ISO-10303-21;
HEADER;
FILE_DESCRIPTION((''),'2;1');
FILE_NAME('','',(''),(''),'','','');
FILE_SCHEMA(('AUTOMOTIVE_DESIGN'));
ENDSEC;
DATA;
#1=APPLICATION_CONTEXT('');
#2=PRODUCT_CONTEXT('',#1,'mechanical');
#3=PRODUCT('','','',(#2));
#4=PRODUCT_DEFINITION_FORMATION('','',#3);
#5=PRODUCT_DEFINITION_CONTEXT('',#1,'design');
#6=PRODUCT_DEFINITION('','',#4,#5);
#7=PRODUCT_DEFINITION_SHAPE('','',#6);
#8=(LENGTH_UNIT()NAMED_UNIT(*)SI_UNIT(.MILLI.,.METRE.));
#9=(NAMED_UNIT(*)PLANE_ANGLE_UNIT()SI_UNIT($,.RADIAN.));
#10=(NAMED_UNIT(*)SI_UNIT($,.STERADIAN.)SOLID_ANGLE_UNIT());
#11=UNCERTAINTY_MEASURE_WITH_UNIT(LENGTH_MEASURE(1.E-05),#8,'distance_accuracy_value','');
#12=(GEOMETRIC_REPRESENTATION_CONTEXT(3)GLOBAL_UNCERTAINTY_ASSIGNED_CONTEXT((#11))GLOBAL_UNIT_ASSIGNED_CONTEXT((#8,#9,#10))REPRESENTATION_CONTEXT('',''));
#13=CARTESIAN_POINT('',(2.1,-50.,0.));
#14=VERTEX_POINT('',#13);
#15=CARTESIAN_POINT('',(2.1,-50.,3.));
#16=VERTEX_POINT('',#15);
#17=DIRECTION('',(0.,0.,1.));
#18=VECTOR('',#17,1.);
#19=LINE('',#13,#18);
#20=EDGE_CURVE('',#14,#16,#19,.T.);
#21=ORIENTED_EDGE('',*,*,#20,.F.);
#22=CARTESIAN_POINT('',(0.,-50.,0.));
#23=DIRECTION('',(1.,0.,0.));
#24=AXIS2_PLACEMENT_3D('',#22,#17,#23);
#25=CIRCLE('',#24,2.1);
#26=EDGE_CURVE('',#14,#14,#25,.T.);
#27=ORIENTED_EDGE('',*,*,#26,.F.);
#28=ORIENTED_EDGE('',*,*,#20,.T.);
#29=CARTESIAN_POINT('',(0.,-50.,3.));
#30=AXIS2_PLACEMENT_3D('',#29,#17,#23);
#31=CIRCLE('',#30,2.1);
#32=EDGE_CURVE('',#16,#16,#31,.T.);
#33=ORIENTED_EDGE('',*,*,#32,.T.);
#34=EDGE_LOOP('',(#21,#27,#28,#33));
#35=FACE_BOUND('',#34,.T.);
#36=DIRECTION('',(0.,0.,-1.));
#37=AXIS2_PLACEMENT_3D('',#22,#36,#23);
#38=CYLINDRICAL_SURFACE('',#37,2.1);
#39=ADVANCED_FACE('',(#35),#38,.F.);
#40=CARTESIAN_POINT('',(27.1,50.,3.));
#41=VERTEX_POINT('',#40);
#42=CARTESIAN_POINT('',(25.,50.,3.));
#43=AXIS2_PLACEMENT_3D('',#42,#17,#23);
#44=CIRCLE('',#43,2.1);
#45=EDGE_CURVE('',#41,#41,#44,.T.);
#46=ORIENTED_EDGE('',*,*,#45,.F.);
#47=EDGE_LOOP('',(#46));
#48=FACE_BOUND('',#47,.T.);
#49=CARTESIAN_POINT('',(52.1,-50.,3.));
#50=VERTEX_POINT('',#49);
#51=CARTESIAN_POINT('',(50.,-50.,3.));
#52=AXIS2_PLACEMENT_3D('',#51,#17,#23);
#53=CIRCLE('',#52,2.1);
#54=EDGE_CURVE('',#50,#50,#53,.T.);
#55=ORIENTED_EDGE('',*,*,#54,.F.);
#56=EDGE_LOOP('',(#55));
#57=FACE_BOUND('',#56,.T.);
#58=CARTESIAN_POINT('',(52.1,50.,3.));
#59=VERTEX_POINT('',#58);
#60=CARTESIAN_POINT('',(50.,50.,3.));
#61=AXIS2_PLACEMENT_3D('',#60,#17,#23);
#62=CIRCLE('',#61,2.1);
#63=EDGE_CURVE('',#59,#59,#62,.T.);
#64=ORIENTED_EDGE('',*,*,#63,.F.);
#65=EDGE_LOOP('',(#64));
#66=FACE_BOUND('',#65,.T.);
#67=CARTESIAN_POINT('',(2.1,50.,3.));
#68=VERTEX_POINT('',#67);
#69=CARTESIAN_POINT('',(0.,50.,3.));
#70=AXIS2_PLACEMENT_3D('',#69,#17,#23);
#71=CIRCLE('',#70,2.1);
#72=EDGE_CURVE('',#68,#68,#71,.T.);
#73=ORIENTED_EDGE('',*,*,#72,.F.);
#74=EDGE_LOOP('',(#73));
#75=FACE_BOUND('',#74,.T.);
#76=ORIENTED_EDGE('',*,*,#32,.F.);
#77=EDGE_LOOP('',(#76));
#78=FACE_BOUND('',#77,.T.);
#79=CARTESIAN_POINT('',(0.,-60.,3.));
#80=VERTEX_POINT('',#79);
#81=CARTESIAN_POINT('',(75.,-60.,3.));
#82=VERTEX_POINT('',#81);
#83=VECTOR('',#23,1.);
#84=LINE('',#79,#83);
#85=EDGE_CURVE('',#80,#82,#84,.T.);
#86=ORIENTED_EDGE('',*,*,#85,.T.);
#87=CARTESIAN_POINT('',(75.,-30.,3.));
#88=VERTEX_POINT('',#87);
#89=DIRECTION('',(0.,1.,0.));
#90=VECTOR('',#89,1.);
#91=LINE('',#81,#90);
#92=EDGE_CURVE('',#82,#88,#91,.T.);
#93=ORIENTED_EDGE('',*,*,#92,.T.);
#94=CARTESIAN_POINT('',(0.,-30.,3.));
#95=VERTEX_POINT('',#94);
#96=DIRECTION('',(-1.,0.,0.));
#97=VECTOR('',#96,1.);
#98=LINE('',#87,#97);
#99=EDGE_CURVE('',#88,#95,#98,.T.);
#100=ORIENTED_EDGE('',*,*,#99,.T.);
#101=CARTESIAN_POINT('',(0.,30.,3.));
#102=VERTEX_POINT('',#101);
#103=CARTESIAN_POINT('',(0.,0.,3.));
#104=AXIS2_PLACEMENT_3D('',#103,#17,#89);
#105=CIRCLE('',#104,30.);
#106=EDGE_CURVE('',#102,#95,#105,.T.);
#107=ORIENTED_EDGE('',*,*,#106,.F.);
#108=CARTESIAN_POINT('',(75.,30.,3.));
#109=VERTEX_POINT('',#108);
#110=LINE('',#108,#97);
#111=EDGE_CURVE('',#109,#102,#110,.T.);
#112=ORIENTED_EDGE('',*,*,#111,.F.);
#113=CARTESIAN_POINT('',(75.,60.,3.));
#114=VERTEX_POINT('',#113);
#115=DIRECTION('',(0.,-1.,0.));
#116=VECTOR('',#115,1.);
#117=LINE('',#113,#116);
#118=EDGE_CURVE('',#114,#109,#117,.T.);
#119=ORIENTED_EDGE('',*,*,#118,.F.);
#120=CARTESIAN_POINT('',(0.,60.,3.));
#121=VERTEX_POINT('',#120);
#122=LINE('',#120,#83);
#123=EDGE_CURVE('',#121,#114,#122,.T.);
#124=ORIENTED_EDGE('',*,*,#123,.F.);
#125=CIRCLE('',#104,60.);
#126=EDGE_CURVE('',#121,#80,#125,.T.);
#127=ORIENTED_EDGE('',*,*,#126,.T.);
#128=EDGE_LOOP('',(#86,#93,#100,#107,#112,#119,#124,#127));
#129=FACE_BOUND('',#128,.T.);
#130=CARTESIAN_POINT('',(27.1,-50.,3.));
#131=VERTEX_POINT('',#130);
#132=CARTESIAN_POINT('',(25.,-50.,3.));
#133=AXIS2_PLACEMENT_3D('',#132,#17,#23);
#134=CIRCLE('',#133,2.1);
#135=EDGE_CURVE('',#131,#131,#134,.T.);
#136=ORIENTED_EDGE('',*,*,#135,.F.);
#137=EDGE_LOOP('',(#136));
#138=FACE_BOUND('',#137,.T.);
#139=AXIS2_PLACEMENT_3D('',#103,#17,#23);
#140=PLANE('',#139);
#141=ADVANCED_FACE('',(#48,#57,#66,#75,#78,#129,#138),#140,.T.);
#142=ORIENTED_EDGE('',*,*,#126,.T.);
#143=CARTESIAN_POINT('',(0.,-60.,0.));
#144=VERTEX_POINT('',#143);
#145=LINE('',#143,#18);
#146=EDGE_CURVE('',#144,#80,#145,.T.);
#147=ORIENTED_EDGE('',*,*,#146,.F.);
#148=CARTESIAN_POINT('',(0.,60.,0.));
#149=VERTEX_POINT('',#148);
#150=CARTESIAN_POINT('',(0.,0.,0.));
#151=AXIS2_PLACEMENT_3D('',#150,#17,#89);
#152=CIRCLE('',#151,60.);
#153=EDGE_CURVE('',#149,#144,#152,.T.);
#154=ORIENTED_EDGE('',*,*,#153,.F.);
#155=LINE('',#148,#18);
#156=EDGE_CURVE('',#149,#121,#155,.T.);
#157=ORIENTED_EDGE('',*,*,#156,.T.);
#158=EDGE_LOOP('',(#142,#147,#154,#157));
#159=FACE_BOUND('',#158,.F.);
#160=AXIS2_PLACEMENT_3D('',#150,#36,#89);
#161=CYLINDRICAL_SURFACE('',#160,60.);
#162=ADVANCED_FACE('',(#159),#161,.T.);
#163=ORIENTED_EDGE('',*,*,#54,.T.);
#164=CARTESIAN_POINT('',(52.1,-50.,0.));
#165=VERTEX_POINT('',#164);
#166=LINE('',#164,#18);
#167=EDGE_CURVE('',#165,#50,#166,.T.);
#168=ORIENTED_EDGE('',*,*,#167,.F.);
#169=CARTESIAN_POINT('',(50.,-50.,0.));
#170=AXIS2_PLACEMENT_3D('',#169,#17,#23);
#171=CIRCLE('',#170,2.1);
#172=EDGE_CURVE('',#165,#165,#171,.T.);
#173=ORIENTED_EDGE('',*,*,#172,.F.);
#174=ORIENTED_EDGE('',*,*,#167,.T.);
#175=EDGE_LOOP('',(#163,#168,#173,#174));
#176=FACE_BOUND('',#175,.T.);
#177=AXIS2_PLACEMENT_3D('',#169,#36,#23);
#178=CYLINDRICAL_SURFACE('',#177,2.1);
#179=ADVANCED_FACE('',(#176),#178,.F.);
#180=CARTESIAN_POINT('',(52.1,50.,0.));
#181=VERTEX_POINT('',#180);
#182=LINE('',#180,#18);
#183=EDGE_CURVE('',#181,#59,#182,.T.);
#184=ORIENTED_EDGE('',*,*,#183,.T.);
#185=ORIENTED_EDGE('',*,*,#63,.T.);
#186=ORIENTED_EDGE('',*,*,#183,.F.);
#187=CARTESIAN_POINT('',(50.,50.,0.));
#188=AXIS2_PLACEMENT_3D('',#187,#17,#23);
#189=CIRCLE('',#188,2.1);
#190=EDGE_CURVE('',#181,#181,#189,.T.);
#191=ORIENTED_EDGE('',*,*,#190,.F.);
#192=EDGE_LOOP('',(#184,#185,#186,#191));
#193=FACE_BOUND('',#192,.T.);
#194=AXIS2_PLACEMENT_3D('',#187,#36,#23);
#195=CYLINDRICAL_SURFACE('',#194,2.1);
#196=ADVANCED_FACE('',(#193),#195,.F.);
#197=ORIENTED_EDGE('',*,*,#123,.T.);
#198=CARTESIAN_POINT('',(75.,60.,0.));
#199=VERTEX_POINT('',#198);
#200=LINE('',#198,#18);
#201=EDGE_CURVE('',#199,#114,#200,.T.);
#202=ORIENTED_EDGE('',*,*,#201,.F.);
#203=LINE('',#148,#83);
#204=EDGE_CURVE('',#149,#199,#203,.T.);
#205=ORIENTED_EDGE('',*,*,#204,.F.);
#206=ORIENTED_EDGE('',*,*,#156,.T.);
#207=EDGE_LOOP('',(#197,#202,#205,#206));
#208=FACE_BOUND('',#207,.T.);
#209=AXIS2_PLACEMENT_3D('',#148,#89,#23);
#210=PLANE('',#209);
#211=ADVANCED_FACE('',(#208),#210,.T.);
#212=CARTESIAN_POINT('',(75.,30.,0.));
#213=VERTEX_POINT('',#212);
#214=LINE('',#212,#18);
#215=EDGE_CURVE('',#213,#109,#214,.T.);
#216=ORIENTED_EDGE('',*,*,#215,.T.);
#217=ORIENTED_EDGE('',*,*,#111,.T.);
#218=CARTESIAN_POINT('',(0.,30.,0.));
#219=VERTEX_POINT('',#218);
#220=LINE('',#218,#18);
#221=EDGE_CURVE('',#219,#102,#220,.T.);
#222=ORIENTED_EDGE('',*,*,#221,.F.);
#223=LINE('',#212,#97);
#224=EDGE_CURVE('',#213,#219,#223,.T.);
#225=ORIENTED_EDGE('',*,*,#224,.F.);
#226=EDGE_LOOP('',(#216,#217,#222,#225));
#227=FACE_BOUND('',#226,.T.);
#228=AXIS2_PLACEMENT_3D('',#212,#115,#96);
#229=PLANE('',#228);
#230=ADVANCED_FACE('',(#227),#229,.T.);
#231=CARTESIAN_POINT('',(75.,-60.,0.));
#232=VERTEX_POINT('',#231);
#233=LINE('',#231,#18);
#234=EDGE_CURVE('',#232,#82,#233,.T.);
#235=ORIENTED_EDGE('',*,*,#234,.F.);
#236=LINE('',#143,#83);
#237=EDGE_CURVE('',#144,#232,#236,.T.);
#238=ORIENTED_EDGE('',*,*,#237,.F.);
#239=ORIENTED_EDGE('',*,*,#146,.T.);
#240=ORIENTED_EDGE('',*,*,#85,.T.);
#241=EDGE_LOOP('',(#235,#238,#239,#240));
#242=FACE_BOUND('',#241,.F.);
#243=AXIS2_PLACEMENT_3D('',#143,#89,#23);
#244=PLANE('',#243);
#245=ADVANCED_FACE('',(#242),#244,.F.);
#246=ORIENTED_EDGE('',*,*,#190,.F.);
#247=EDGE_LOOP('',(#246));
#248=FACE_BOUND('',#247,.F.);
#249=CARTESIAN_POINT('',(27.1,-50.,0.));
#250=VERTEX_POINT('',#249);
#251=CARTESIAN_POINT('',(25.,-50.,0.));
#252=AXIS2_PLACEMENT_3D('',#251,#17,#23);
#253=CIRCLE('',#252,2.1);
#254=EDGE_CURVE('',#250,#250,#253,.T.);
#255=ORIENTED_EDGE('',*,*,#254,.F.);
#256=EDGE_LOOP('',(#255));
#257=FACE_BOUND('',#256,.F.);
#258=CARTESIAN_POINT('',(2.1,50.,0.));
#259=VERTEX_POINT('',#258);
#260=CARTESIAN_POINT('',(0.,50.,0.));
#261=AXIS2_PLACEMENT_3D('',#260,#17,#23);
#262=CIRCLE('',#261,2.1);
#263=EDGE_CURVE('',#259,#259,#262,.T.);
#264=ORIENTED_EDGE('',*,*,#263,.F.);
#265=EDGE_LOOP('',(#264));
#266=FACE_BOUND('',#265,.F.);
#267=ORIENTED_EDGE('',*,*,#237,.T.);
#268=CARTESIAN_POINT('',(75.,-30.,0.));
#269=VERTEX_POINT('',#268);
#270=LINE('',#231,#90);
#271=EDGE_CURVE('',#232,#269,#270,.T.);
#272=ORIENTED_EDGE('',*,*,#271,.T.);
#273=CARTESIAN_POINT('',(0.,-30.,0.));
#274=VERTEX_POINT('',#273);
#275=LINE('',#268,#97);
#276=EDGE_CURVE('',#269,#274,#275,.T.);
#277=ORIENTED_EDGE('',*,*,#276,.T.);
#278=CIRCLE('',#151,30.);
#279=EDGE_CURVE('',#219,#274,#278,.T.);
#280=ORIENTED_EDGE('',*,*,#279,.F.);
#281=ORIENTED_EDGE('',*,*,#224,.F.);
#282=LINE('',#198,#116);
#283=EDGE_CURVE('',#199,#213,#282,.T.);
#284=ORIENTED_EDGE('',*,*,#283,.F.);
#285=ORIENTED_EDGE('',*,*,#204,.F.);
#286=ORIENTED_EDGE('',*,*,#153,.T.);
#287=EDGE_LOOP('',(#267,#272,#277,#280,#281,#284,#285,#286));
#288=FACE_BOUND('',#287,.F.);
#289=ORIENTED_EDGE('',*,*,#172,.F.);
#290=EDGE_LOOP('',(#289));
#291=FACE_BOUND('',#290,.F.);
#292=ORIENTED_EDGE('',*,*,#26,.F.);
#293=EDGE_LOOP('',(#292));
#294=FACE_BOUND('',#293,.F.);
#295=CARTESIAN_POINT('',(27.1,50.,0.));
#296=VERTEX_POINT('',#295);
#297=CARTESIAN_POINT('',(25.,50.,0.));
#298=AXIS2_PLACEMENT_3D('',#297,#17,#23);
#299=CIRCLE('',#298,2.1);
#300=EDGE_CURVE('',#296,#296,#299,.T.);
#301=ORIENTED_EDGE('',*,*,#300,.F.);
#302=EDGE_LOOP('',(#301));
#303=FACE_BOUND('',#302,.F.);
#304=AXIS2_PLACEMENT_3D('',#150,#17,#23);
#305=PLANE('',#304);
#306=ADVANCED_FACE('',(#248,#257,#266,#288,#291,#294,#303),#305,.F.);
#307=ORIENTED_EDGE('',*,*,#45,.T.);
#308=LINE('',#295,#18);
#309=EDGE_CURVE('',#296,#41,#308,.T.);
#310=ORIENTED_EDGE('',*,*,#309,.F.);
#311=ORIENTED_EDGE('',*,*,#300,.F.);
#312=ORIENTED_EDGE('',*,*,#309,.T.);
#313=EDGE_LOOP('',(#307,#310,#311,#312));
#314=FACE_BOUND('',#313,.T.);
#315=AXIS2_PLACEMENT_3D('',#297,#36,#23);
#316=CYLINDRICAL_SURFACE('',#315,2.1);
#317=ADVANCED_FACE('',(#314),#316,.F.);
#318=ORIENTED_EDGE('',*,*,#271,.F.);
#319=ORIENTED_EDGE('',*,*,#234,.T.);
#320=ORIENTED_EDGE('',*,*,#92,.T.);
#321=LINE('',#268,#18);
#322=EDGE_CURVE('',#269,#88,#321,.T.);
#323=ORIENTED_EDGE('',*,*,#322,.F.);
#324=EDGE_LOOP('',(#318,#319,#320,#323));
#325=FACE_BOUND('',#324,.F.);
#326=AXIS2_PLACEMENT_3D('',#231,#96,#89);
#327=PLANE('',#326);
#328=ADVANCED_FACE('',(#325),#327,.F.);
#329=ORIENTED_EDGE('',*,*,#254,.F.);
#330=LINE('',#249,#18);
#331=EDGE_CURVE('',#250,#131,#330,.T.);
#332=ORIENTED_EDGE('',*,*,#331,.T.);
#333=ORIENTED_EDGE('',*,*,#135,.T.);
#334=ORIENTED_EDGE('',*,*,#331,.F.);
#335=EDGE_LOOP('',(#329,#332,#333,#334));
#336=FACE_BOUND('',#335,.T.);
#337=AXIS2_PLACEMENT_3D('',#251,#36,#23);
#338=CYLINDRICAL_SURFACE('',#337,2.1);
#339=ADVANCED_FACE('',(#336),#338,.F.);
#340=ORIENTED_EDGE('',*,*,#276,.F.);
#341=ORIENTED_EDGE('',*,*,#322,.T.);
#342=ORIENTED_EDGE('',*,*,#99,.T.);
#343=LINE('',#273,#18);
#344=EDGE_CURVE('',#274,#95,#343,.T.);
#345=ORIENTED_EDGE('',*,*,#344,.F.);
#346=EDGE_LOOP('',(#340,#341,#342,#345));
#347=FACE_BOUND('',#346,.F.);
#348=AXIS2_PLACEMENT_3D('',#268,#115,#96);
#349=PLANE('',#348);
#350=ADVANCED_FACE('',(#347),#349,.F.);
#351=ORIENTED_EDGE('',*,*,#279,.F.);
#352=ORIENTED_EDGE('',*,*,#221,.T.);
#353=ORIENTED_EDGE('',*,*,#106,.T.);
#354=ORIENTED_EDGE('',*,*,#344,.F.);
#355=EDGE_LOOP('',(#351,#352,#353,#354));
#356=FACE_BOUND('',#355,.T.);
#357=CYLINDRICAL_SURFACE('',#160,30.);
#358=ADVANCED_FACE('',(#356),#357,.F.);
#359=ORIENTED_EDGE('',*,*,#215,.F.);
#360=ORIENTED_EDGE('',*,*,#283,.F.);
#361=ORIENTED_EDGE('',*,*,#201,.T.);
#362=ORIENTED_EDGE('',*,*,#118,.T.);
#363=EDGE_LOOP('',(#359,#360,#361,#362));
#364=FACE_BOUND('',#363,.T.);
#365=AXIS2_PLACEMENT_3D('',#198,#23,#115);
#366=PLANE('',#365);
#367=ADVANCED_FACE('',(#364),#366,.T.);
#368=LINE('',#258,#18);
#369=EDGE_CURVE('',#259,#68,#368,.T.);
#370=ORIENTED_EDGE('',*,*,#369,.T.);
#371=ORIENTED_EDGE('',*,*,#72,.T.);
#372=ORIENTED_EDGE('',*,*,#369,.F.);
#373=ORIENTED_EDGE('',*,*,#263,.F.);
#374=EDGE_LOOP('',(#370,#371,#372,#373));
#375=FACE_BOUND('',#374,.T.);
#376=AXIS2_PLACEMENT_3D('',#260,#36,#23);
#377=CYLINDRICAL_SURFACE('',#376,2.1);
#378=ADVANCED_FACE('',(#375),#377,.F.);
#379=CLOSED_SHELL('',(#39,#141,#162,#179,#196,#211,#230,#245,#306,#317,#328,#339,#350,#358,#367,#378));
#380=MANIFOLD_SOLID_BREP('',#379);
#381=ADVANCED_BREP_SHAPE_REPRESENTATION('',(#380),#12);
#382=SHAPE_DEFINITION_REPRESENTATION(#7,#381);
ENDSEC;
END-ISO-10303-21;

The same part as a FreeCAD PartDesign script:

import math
import FreeCAD as App
import Part
import Sketcher

V = App.Vector

doc = App.newDocument("Part")
body = doc.addObject("PartDesign::Body", "Body")

# Sketch on XY plane
sketch1 = body.newObject("Sketcher::SketchObject", "Sketch")
sketch1.AttachmentSupport = (doc.getObject("XY_Plane"), [""])
sketch1.MapMode = "FlatFace"
sketch1.addGeometry([
    Part.LineSegment(V(75, 60, 0), V(0, 60, 0)),  # 0
    Part.ArcOfCircle(Part.Circle(V(0, 0, 0), V(0, 0, 1), 60), math.radians(90), math.radians(270)),  # 1
    Part.LineSegment(V(0, -60, 0), V(75, -60, 0)),  # 2
    Part.LineSegment(V(75, -60, 0), V(75, -30, 0)),  # 3
    Part.LineSegment(V(75, -30, 0), V(0, -30, 0)),  # 4
    Part.ArcOfCircle(Part.Circle(V(0, 0, 0), V(0, 0, 1), 30), math.radians(90), math.radians(270)),  # 5
    Part.LineSegment(V(0, 30, 0), V(75, 30, 0)),  # 6
    Part.LineSegment(V(75, 30, 0), V(75, 60, 0)),  # 7
    Part.Circle(V(0, -50, 0), V(0, 0, 1), 2.1),  # 8
    Part.Circle(V(25, -50, 0), V(0, 0, 1), 2.1),  # 9
    Part.Circle(V(50, -50, 0), V(0, 0, 1), 2.1),  # 10
    Part.Circle(V(0, 50, 0), V(0, 0, 1), 2.1),  # 11
    Part.Circle(V(25, 50, 0), V(0, 0, 1), 2.1),  # 12
    Part.Circle(V(50, 50, 0), V(0, 0, 1), 2.1),  # 13
], False)
sketch1.addConstraint([
    Sketcher.Constraint("Tangent", 0, 2, 1, 1),
    Sketcher.Constraint("Tangent", 1, 2, 2, 1),
    Sketcher.Constraint("Coincident", 2, 2, 3, 1),
    Sketcher.Constraint("Coincident", 3, 2, 4, 1),
    Sketcher.Constraint("Tangent", 4, 2, 5, 2),
    Sketcher.Constraint("Tangent", 5, 1, 6, 1),
    Sketcher.Constraint("Coincident", 6, 2, 7, 1),
    Sketcher.Constraint("Coincident", 7, 2, 0, 1),
    Sketcher.Constraint("Horizontal", 0),
    Sketcher.Constraint("Horizontal", 2),
    Sketcher.Constraint("Vertical", 3),
    Sketcher.Constraint("Horizontal", 4),
    Sketcher.Constraint("Horizontal", 6),
    Sketcher.Constraint("Vertical", 7),
    Sketcher.Constraint("Coincident", 1, 3, -1, 1),
    Sketcher.Constraint("Coincident", 5, 3, -1, 1),
    Sketcher.Constraint("Equal", 8, 9),
    Sketcher.Constraint("Equal", 9, 10),
    Sketcher.Constraint("Equal", 10, 11),
    Sketcher.Constraint("Equal", 11, 12),
    Sketcher.Constraint("Equal", 12, 13),
    Sketcher.Constraint("Symmetric", 8, 3, 11, 3, -1, 1),
    Sketcher.Constraint("Symmetric", 9, 3, 12, 3, -1),
    Sketcher.Constraint("Symmetric", 10, 3, 13, 3, -1),
    Sketcher.Constraint("PointOnObject", 8, 3, -2),
    Sketcher.Constraint("Horizontal", 8, 3, 9, 3),
    Sketcher.Constraint("Horizontal", 9, 3, 10, 3),
    Sketcher.Constraint("Vertical", 3, 2, 6, 2),
    Sketcher.Constraint("Diameter", 8, 4.2),
    Sketcher.Constraint("Radius", 1, 60.0),
    Sketcher.Constraint("Radius", 5, 30.0),
    Sketcher.Constraint("DistanceX", 0, 2, 0, 1, 75.0),
    Sketcher.Constraint("DistanceY", 8, 3, -1, 1, 50.0),
    Sketcher.Constraint("DistanceX", -1, 1, 9, 3, 25.0),
    Sketcher.Constraint("DistanceX", -1, 1, 10, 3, 50.0),
])
pad1 = body.newObject("PartDesign::Pad", "Pad")
pad1.Profile = sketch1
pad1.Length = 3

doc.recompute()
